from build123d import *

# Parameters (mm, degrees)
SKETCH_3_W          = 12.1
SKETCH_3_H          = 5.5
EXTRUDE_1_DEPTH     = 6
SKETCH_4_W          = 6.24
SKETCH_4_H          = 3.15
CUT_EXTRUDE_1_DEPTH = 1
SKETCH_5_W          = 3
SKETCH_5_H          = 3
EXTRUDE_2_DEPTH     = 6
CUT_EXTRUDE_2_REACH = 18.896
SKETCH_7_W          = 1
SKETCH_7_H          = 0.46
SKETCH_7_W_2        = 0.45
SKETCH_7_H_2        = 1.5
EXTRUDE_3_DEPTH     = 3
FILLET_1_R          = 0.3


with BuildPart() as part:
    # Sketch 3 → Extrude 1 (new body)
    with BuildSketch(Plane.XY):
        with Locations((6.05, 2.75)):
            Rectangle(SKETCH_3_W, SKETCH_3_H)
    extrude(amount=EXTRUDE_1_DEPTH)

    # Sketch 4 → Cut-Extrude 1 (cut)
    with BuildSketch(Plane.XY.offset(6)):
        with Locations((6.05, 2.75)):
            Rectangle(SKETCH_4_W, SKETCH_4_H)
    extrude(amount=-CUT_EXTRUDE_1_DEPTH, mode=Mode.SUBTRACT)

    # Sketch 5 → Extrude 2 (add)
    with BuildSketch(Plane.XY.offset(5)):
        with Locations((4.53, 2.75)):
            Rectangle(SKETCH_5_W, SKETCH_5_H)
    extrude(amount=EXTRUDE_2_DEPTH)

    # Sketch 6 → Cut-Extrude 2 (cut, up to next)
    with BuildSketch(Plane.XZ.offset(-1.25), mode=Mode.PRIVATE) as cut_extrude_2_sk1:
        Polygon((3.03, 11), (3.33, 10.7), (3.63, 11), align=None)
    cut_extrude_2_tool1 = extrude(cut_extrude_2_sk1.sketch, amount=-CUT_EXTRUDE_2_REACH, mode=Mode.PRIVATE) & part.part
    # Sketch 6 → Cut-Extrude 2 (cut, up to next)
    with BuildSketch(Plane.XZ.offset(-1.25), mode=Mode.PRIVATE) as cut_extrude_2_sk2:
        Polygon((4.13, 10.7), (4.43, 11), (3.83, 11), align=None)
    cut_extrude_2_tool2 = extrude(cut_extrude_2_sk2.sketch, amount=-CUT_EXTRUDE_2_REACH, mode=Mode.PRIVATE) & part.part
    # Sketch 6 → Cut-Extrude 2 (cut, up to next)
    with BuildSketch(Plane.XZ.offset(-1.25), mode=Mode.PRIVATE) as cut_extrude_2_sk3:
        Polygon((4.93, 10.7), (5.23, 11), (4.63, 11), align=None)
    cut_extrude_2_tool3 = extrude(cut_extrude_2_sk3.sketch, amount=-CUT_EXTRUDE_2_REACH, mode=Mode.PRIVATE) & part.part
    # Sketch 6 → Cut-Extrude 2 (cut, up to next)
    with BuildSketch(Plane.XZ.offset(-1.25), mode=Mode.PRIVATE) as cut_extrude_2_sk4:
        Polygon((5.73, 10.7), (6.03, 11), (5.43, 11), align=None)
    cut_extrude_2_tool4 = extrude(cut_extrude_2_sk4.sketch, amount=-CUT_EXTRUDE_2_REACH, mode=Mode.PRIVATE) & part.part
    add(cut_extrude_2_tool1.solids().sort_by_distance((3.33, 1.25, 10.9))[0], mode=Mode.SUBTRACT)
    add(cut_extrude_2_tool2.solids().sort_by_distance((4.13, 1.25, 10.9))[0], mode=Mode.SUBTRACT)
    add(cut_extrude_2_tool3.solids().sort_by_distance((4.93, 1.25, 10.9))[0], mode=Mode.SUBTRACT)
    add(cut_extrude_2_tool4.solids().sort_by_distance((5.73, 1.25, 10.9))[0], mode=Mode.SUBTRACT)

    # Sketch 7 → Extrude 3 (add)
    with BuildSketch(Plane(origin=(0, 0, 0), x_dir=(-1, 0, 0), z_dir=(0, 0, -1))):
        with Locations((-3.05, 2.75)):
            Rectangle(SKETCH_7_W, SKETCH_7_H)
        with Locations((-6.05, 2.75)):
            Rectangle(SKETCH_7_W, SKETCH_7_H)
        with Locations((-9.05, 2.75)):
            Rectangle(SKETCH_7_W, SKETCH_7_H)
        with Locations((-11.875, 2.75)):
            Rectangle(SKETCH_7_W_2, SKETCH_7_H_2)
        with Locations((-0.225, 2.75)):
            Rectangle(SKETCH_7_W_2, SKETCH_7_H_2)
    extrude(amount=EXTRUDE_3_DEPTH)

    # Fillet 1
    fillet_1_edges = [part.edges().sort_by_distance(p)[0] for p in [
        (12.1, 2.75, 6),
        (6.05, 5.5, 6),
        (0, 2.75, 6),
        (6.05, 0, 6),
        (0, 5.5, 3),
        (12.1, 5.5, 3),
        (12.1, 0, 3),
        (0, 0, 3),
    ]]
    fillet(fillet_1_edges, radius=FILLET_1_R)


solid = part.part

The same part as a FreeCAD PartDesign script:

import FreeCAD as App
import Part
import Sketcher
from FreeCAD import Vector


def edges_at(feature, points):
    """Names of the edges that pass closest to the given points."""
    edges = feature.Shape.Edges
    near = lambda p: min(range(len(edges)), key=lambda i: edges[i].distToShape(Part.Vertex(*p))[0])
    return sorted({f"Edge{near(p) + 1}" for p in points})


def add_polygon(sketch, points):
    """Adds a closed chain of lines whose ends are joined by coincident constraints."""
    first, n = sketch.GeometryCount, len(points)
    for a, b in zip(points, points[1:] + points[:1]):
        sketch.addGeometry(Part.LineSegment(App.Vector(*a, 0), App.Vector(*b, 0)), False)
    for i in range(n):
        sketch.addConstraint(Sketcher.Constraint("Coincident", first + i, 2, first + (i + 1) % n, 1))

doc = App.newDocument("Part")
params = doc.addObject("Spreadsheet::Sheet", "Params")
for row, (alias, value) in enumerate([
    ("sketch1_width", "12.1 mm"),
    ("sketch1_height", "5.5 mm"),
    ("pad1_length", "6 mm"),
    ("sketch2_width", "6.24 mm"),
    ("sketch2_height", "3.15 mm"),
    ("pocket1_length", "1 mm"),
    ("sketch3_width", "3 mm"),
    ("pad2_length", "6 mm"),
    ("sketch4_width", "0.6 mm"),
    ("sketch5_width", "0.6 mm"),
    ("sketch6_width", "0.6 mm"),
    ("sketch7_width", "0.6 mm"),
    ("sketch8_width", "1 mm"),
    ("sketch8_height", "1.5 mm"),
    ("sketch8_width2", "0.45 mm"),
    ("sketch8_height2", "0.46 mm"),
    ("pad3_length", "3 mm"),
    ("fillet_radius", "0.3 mm"),
], start=1):
    params.set(f"A{row}", alias)
    params.set(f"B{row}", "=" + value)
    params.setAlias(f"B{row}", alias)

body = doc.addObject("PartDesign::Body", "Body")

# Sketch on XY plane
sketch1 = doc.addObject("Sketcher::SketchObject", "Sketch")
body.addObject(sketch1)
sketch1.AttachmentSupport = (doc.XY_Plane, [""])
sketch1.MapMode = "FlatFace"
add_polygon(sketch1, [(0, 5.5), (0, 0), (12.1, 0), (12.1, 5.5)])  # lines 0-3
sketch1.addConstraint([
    Sketcher.Constraint("Vertical", 0),
    Sketcher.Constraint("Horizontal", 1),
    Sketcher.Constraint("Vertical", 2),
    Sketcher.Constraint("Horizontal", 3),
    Sketcher.Constraint("Coincident", 0, 2, -1, 1),
    Sketcher.Constraint("DistanceX", 1, 1, 1, 2, 12.1),
    Sketcher.Constraint("DistanceY", 0, 2, 0, 1, 5.5),
])
sketch1.setExpression("Constraints[9]", "Params.sketch1_width")
sketch1.setExpression("Constraints[10]", "Params.sketch1_height")
pad1 = doc.addObject("PartDesign::Pad", "Pad")
body.addObject(pad1)
pad1.Profile = sketch1
pad1.setExpression("Length", "Params.pad1_length")

# Sketch on XY plane
sketch2 = doc.addObject("Sketcher::SketchObject", "Sketch001")
body.addObject(sketch2)
sketch2.AttachmentSupport = (doc.XY_Plane, [""])
sketch2.MapMode = "FlatFace"
sketch2.AttachmentOffset = App.Placement(Vector(0, 0, 6), App.Rotation())
add_polygon(sketch2, [(2.93, 4.325), (2.93, 1.175), (9.17, 1.175), (9.17, 4.325)])  # lines 0-3
sketch2.addConstraint([
    Sketcher.Constraint("Vertical", 0),
    Sketcher.Constraint("Horizontal", 1),
    Sketcher.Constraint("Vertical", 2),
    Sketcher.Constraint("Horizontal", 3),
    Sketcher.Constraint("DistanceX", 1, 1, 1, 2, 6.24),
    Sketcher.Constraint("DistanceY", 0, 2, 0, 1, 3.15),
    Sketcher.Constraint("DistanceX", -1, 1, 0, 2, 2.93),
    Sketcher.Constraint("DistanceY", -1, 1, 0, 2, 1.175),
])
sketch2.setExpression("Constraints[8]", "Params.sketch2_width")
sketch2.setExpression("Constraints[9]", "Params.sketch2_height")
pocket1 = doc.addObject("PartDesign::Pocket", "Pocket")
body.addObject(pocket1)
pocket1.Profile = sketch2
pocket1.setExpression("Length", "Params.pocket1_length")

# Sketch on XY plane
sketch3 = doc.addObject("Sketcher::SketchObject", "Sketch002")
body.addObject(sketch3)
sketch3.AttachmentSupport = (doc.XY_Plane, [""])
sketch3.MapMode = "FlatFace"
sketch3.AttachmentOffset = App.Placement(Vector(0, 0, 5), App.Rotation())
add_polygon(sketch3, [(3.03, 4.25), (3.03, 1.25), (6.03, 1.25), (6.03, 4.25)])  # lines 0-3
sketch3.addConstraint([
    Sketcher.Constraint("Vertical", 0),
    Sketcher.Constraint("Horizontal", 1),
    Sketcher.Constraint("Vertical", 2),
    Sketcher.Constraint("Horizontal", 3),
    Sketcher.Constraint("Equal", 3, 0),
    Sketcher.Constraint("DistanceX", 1, 1, 1, 2, 3.0),
    Sketcher.Constraint("DistanceX", -1, 1, 0, 2, 3.03),
    Sketcher.Constraint("DistanceY", -1, 1, 0, 2, 1.25),
])
sketch3.setExpression("Constraints[9]", "Params.sketch3_width")
pad2 = doc.addObject("PartDesign::Pad", "Pad001")
body.addObject(pad2)
pad2.Profile = sketch3
pad2.setExpression("Length", "Params.pad2_length")

# Sketch on XZ plane
sketch4 = doc.addObject("Sketcher::SketchObject", "Sketch003")
body.addObject(sketch4)
sketch4.AttachmentSupport = (doc.XZ_Plane, [""])
sketch4.MapMode = "FlatFace"
sketch4.AttachmentOffset = App.Placement(Vector(0, 0, -1.25), App.Rotation())
add_polygon(sketch4, [(3.03, 11), (3.33, 10.7), (3.63, 11)])  # lines 0-2
sketch4.addConstraint([
    Sketcher.Constraint("Horizontal", 2),
    Sketcher.Constraint("Perpendicular", 0, 1),
    Sketcher.Constraint("Equal", 0, 1),
    Sketcher.Constraint("DistanceX", 2, 2, 2, 1, 0.6),
    Sketcher.Constraint("DistanceY", -1, 1, 1, 2, 11.0),
    Sketcher.Constraint("DistanceX", -1, 1, 0, 2, 3.33),
])
sketch4.setExpression("Constraints[6]", "Params.sketch4_width")
pocket2 = doc.addObject("PartDesign::Pocket", "Pocket001")
body.addObject(pocket2)
pocket2.Profile = sketch4
pocket2.Type = "UpToFirst"

# Sketch on XZ plane
sketch5 = doc.addObject("Sketcher::SketchObject", "Sketch004")
body.addObject(sketch5)
sketch5.AttachmentSupport = (doc.XZ_Plane, [""])
sketch5.MapMode = "FlatFace"
sketch5.AttachmentOffset = App.Placement(Vector(0, 0, -1.25), App.Rotation())
add_polygon(sketch5, [(4.13, 10.7), (4.43, 11), (3.83, 11)])  # lines 0-2
sketch5.addConstraint([
    Sketcher.Constraint("Horizontal", 1),
    Sketcher.Constraint("Perpendicular", 0, 2),
    Sketcher.Constraint("Equal", 0, 2),
    Sketcher.Constraint("DistanceX", 1, 2, 1, 1, 0.6),
    Sketcher.Constraint("DistanceY", -1, 1, 0, 2, 11.0),
    Sketcher.Constraint("DistanceX", -1, 1, 0, 2, 4.43),
])
sketch5.setExpression("Constraints[6]", "Params.sketch5_width")
pocket3 = doc.addObject("PartDesign::Pocket", "Pocket002")
body.addObject(pocket3)
pocket3.Profile = sketch5
pocket3.Type = "UpToFirst"

# Sketch on XZ plane
sketch6 = doc.addObject("Sketcher::SketchObject", "Sketch005")
body.addObject(sketch6)
sketch6.AttachmentSupport = (doc.XZ_Plane, [""])
sketch6.MapMode = "FlatFace"
sketch6.AttachmentOffset = App.Placement(Vector(0, 0, -1.25), App.Rotation())
add_polygon(sketch6, [(4.93, 10.7), (5.23, 11), (4.63, 11)])  # lines 0-2
sketch6.addConstraint([
    Sketcher.Constraint("Horizontal", 1),
    Sketcher.Constraint("Perpendicular", 0, 2),
    Sketcher.Constraint("Equal", 0, 2),
    Sketcher.Constraint("DistanceX", 1, 2, 1, 1, 0.6),
    Sketcher.Constraint("DistanceY", -1, 1, 0, 2, 11.0),
    Sketcher.Constraint("DistanceX", -1, 1, 0, 2, 5.23),
])
sketch6.setExpression("Constraints[6]", "Params.sketch6_width")
pocket4 = doc.addObject("PartDesign::Pocket", "Pocket003")
body.addObject(pocket4)
pocket4.Profile = sketch6
pocket4.Type = "UpToFirst"

# Sketch on XZ plane
sketch7 = doc.addObject("Sketcher::SketchObject", "Sketch006")
body.addObject(sketch7)
sketch7.AttachmentSupport = (doc.XZ_Plane, [""])
sketch7.MapMode = "FlatFace"
sketch7.AttachmentOffset = App.Placement(Vector(0, 0, -1.25), App.Rotation())
add_polygon(sketch7, [(5.73, 10.7), (6.03, 11), (5.43, 11)])  # lines 0-2
sketch7.addConstraint([
    Sketcher.Constraint("Horizontal", 1),
    Sketcher.Constraint("Perpendicular", 0, 2),
    Sketcher.Constraint("Equal", 0, 2),
    Sketcher.Constraint("DistanceX", 1, 2, 1, 1, 0.6),
    Sketcher.Constraint("DistanceY", -1, 1, 0, 2, 11.0),
    Sketcher.Constraint("DistanceX", -1, 1, 0, 2, 6.03),
])
sketch7.setExpression("Constraints[6]", "Params.sketch7_width")
pocket5 = doc.addObject("PartDesign::Pocket", "Pocket004")
body.addObject(pocket5)
pocket5.Profile = sketch7
pocket5.Type = "UpToFirst"

# Sketch on XY plane
sketch8 = doc.addObject("Sketcher::SketchObject", "Sketch007")
body.addObject(sketch8)
sketch8.AttachmentSupport = (doc.XY_Plane, [""])
sketch8.MapMode = "FlatFace"
add_polygon(sketch8, [(3.55, 2.98), (3.55, 2.52), (2.55, 2.52), (2.55, 2.98)])  # lines 0-3
add_polygon(sketch8, [(6.55, 2.98), (6.55, 2.52), (5.55, 2.52), (5.55, 2.98)])  # lines 4-7
add_polygon(sketch8, [(9.55, 2.98), (9.55, 2.52), (8.55, 2.52), (8.55, 2.98)])  # lines 8-11
add_polygon(sketch8, [(12.1, 3.5), (12.1, 2), (11.65, 2), (11.65, 3.5)])  # lines 12-15
add_polygon(sketch8, [(0.45, 3.5), (0.45, 2), (0, 2), (0, 3.5)])  # lines 16-19
sketch8.addConstraint([
    Sketcher.Constraint("Vertical", 0),
    Sketcher.Constraint("Horizontal", 1),
    Sketcher.Constraint("Vertical", 2),
    Sketcher.Constraint("Horizontal", 3),
    Sketcher.Constraint("Vertical", 4),
    Sketcher.Constraint("Horizontal", 5),
    Sketcher.Constraint("Vertical", 6),
    Sketcher.Constraint("Horizontal", 7),
    Sketcher.Constraint("Vertical", 8),
    Sketcher.Constraint("Horizontal", 9),
    Sketcher.Constraint("Vertical", 10),
    Sketcher.Constraint("Horizontal", 11),
    Sketcher.Constraint("Vertical", 12),
    Sketcher.Constraint("Horizontal", 13),
    Sketcher.Constraint("Vertical", 14),
    Sketcher.Constraint("Horizontal", 15),
    Sketcher.Constraint("Vertical", 16),
    Sketcher.Constraint("Horizontal", 17),
    Sketcher.Constraint("Vertical", 18),
    Sketcher.Constraint("Horizontal", 19),
    Sketcher.Constraint("PointOnObject", 17, 2, -2),
    Sketcher.Constraint("Horizontal", 1, 2, 4, 2),
    Sketcher.Constraint("Horizontal", 3, 2, 6, 2),
    Sketcher.Constraint("Horizontal", 5, 2, 8, 2),
    Sketcher.Constraint("Horizontal", 7, 2, 10, 2),
    Sketcher.Constraint("Horizontal", 13, 2, 16, 2),
    Sketcher.Constraint("Horizontal", 15, 2, 18, 2),
    Sketcher.Constraint("Equal", 3, 5),
    Sketcher.Constraint("Equal", 7, 9),
    Sketcher.Constraint("Equal", 15, 17),
    Sketcher.Constraint("DistanceX", 1, 2, 1, 1, 1.0),
    Sketcher.Constraint("DistanceY", 12, 2, 12, 1, 1.5),
    Sketcher.Constraint("DistanceY", -1, 1, 12, 2, 2.0),
    Sketcher.Constraint("DistanceX", 0, 2, 4, 2, 3.0),
    Sketcher.Constraint("DistanceX", 4, 2, 8, 2, 3.0),
    Sketcher.Constraint("DistanceX", 13, 2, 13, 1, 0.45),
    Sketcher.Constraint("DistanceY", 0, 2, 0, 1, 0.46),
    Sketcher.Constraint("DistanceX", -1, 1, 12, 2, 12.1),
    Sketcher.Constraint("DistanceX", 8, 2, 13, 2, 2.1),
    Sketcher.Constraint("DistanceY", -1, 1, 0, 2, 2.52),
])
sketch8.setExpression("Constraints[50]", "Params.sketch8_width")
sketch8.setExpression("Constraints[51]", "Params.sketch8_height")
sketch8.setExpression("Constraints[55]", "Params.sketch8_width2")
sketch8.setExpression("Constraints[56]", "Params.sketch8_height2")
pad3 = doc.addObject("PartDesign::Pad", "Pad002")
body.addObject(pad3)
pad3.Profile = sketch8
pad3.setExpression("Length", "Params.pad3_length")
pad3.Reversed = True
doc.recompute()

fillet = doc.addObject("PartDesign::Fillet", "Fillet")
body.addObject(fillet)
fillet.Base = (pad3, edges_at(pad3, [
    (12.1, 2.75, 6),
    (6.05, 5.5, 6),
    (0, 2.75, 6),
    (6.05, 0, 6),
    (0, 5.5, 3),
    (12.1, 5.5, 3),
    (12.1, 0, 3),
    (0, 0, 3),
]))
fillet.setExpression("Radius", "Params.fillet_radius")

doc.recompute()
